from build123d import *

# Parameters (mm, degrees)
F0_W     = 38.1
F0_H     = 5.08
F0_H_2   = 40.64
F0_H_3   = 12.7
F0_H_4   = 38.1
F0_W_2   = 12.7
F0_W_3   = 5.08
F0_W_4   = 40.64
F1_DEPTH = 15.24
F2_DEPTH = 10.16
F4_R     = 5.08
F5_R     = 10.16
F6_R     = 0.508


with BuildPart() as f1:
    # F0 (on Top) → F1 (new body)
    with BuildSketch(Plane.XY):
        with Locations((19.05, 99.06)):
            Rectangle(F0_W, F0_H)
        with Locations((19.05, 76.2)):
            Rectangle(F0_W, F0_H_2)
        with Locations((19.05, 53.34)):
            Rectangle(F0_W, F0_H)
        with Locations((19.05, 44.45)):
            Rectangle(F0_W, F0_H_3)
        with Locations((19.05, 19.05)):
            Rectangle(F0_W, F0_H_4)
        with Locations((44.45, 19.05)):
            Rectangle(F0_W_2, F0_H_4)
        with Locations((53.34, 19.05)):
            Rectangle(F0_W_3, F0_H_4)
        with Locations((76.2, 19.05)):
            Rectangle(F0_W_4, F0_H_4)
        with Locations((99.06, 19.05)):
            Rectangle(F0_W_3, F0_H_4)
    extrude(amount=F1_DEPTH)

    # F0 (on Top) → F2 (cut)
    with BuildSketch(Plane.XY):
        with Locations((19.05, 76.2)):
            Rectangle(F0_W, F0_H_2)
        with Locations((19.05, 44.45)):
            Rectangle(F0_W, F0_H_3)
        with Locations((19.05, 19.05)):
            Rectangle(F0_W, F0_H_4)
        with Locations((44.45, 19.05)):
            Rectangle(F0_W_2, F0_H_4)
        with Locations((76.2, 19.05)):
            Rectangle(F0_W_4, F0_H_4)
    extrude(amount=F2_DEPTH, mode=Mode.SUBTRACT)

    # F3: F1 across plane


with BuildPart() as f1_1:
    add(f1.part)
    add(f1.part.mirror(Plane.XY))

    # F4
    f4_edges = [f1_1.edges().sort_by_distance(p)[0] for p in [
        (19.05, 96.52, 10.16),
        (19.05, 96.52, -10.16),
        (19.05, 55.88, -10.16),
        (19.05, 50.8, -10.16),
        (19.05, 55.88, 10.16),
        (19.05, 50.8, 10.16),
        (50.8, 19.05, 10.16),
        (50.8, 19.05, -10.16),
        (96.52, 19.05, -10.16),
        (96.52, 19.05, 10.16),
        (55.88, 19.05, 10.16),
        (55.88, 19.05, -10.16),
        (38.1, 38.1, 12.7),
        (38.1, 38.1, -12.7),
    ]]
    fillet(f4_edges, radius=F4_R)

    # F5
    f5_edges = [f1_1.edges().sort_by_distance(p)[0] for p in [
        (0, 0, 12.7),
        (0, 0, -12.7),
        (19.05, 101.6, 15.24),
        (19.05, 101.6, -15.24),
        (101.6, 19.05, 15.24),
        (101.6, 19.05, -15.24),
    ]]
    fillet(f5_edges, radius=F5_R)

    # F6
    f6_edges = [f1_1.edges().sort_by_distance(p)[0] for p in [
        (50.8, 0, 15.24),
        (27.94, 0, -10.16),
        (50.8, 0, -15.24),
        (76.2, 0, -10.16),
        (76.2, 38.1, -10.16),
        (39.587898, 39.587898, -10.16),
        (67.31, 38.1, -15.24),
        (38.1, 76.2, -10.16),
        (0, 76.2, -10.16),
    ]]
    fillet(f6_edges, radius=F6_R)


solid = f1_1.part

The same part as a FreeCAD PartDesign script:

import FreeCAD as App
import Part
import Sketcher

V = App.Vector
Q = App.Units.Quantity


def edges_at(feature, points):
    """Names of the edges that pass closest to the given points."""
    edges = feature.Shape.Edges
    near = lambda p: min(range(len(edges)), key=lambda i: edges[i].distToShape(Part.Vertex(*p))[0])
    return sorted({f"Edge{near(p) + 1}" for p in points})


def add_polygon(sketch, points):
    """Adds a closed chain of lines whose ends are joined by coincident constraints."""
    first, n = sketch.GeometryCount, len(points)
    for a, b in zip(points, points[1:] + points[:1]):
        sketch.addGeometry(Part.LineSegment(App.Vector(*a, 0), App.Vector(*b, 0)), False)
    for i in range(n):
        sketch.addConstraint(Sketcher.Constraint("Coincident", first + i, 2, first + (i + 1) % n, 1))

doc = App.newDocument("Part")
body = doc.addObject("PartDesign::Body", "Body")

sketch1 = doc.addObject("Sketcher::SketchObject", "Sketch")
body.addObject(sketch1)
sketch1.AttachmentSupport = (doc.XY_Plane, [""])
sketch1.MapMode = "FlatFace"
add_polygon(sketch1, [(0, 102), (0, 0), (102, 0), (102, 38), (38, 38), (38, 102)])
sketch1.addConstraint(Sketcher.Constraint("Vertical", 0))
sketch1.addConstraint(Sketcher.Constraint("Horizontal", 1))
sketch1.addConstraint(Sketcher.Constraint("Vertical", 2))
sketch1.addConstraint(Sketcher.Constraint("Horizontal", 3))
sketch1.addConstraint(Sketcher.Constraint("Vertical", 4))
sketch1.addConstraint(Sketcher.Constraint("Horizontal", 5))
sketch1.addConstraint(Sketcher.Constraint("Coincident", 0, 2, -1, 1))
sketch1.addConstraint(Sketcher.Constraint("Equal", 1, 0))
sketch1.addConstraint(Sketcher.Constraint("Equal", 5, 2))
sketch1.addConstraint(Sketcher.Constraint("DistanceX", 1, 1, 1, 2, Q("4 in")))
sketch1.addConstraint(Sketcher.Constraint("DistanceX", 3, 2, 3, 1, Q("2.5 in")))
pad1 = doc.addObject("PartDesign::Pad", "Pad")
body.addObject(pad1)
pad1.Profile = sketch1
pad1.Length = Q("0.6 in")

sketch2 = doc.addObject("Sketcher::SketchObject", "Sketch001")
body.addObject(sketch2)
sketch2.AttachmentSupport = (doc.XY_Plane, [""])
sketch2.MapMode = "FlatFace"
add_polygon(sketch2, [(0, 97), (0, 56), (38, 56), (38, 97)])
add_polygon(sketch2, [(0, 51), (0, 0), (51, 0), (51, 38), (38, 38), (38, 51)])
add_polygon(sketch2, [(56, 38), (56, 0), (97, 0), (97, 38)])
sketch2.addConstraint(Sketcher.Constraint("Vertical", 0))
sketch2.addConstraint(Sketcher.Constraint("Horizontal", 1))
sketch2.addConstraint(Sketcher.Constraint("Vertical", 2))
sketch2.addConstraint(Sketcher.Constraint("Horizontal", 3))
sketch2.addConstraint(Sketcher.Constraint("Vertical", 4))
sketch2.addConstraint(Sketcher.Constraint("Horizontal", 5))
sketch2.addConstraint(Sketcher.Constraint("Vertical", 6))
sketch2.addConstraint(Sketcher.Constraint("Horizontal", 7))
sketch2.addConstraint(Sketcher.Constraint("Vertical", 8))
sketch2.addConstraint(Sketcher.Constraint("Horizontal", 9))
sketch2.addConstraint(Sketcher.Constraint("Vertical", 10))
sketch2.addConstraint(Sketcher.Constraint("Horizontal", 11))
sketch2.addConstraint(Sketcher.Constraint("Vertical", 12))
sketch2.addConstraint(Sketcher.Constraint("Horizontal", 13))
sketch2.addConstraint(Sketcher.Constraint("Coincident", 4, 2, -1, 1))
sketch2.addConstraint(Sketcher.Constraint("PointOnObject", 0, 2, -2))
sketch2.addConstraint(Sketcher.Constraint("PointOnObject", 10, 2, -1))
sketch2.addConstraint(Sketcher.Constraint("Horizontal", 7, 2, 12, 2))
sketch2.addConstraint(Sketcher.Constraint("Vertical", 2, 2, 7, 2))
sketch2.addConstraint(Sketcher.Constraint("Equal", 13, 0))
sketch2.addConstraint(Sketcher.Constraint("Equal", 5, 4))
sketch2.addConstraint(Sketcher.Constraint("Equal", 9, 6))
sketch2.addConstraint(Sketcher.Constraint("DistanceX", 5, 1, 5, 2, Q("2 in")))
sketch2.addConstraint(Sketcher.Constraint("DistanceX", 1, 1, 1, 2, Q("1.5 in")))
sketch2.addConstraint(Sketcher.Constraint("DistanceX", 11, 1, 11, 2, Q("1.6 in")))
sketch2.addConstraint(Sketcher.Constraint("DistanceY", -1, 1, 0, 2, Q("2.2 in")))
sketch2.addConstraint(Sketcher.Constraint("DistanceX", -1, 1, 10, 2, Q("2.2 in")))
pocket1 = doc.addObject("PartDesign::Pocket", "Pocket")
body.addObject(pocket1)
pocket1.Profile = sketch2
pocket1.Length = Q("0.4 in")
pocket1.Reversed = True
body2 = doc.addObject("PartDesign::Body", "Body001")
doc.recompute()

body2.BaseFeature = body
doc.recompute()

mirroring = doc.addObject("Part::Mirroring", "Mirroring")
mirroring.Source = body
mirroring.Base = V(0, 0, 0)
mirroring.Normal = V(0, 0, 1)
body3 = doc.addObject("PartDesign::Body", "Body002")
body3.BaseFeature = mirroring
boolean = doc.addObject("PartDesign::Boolean", "Boolean")
body2.addObject(boolean)
boolean.Type = "Fuse"
boolean.addObjects([body3])
doc.recompute()

fillet = doc.addObject("PartDesign::Fillet", "Fillet")
body2.addObject(fillet)
fillet.Base = (boolean, edges_at(boolean, [
    (19.05, 96.52, 10.16),
    (19.05, 96.52, -10.16),
    (19.05, 55.88, -10.16),
    (19.05, 50.8, -10.16),
    (19.05, 55.88, 10.16),
    (19.05, 50.8, 10.16),
    (50.8, 19.05, 10.16),
    (50.8, 19.05, -10.16),
    (96.52, 19.05, -10.16),
    (96.52, 19.05, 10.16),
    (55.88, 19.05, 10.16),
    (55.88, 19.05, -10.16),
    (38.1, 38.1, 12.7),
    (38.1, 38.1, -12.7),
]))
fillet.Radius = Q("0.2 in")
doc.recompute()

fillet2 = doc.addObject("PartDesign::Fillet", "Fillet001")
body2.addObject(fillet2)
fillet2.Base = (fillet, edges_at(fillet, [
    (0, 0, 12.7),
    (0, 0, -12.7),
    (19.05, 101.6, 15.24),
    (19.05, 101.6, -15.24),
    (101.6, 19.05, 15.24),
    (101.6, 19.05, -15.24),
]))
fillet2.Radius = Q("0.4 in")
doc.recompute()

fillet3 = doc.addObject("PartDesign::Fillet", "Fillet002")
body2.addObject(fillet3)
fillet3.Base = (fillet2, edges_at(fillet2, [
    (50.8, 0, 15.24),
    (27.94, 0, -10.16),
    (50.8, 0, -15.24),
    (76.2, 0, -10.16),
    (76.2, 38.1, -10.16),
    (39.588, 39.588, -10.16),
    (67.31, 38.1, -15.24),
    (38.1, 76.2, -10.16),
    (0, 76.2, -10.16),
]))
fillet3.Radius = Q("0.02 in")
mirroring.Visibility = False

doc.recompute()
